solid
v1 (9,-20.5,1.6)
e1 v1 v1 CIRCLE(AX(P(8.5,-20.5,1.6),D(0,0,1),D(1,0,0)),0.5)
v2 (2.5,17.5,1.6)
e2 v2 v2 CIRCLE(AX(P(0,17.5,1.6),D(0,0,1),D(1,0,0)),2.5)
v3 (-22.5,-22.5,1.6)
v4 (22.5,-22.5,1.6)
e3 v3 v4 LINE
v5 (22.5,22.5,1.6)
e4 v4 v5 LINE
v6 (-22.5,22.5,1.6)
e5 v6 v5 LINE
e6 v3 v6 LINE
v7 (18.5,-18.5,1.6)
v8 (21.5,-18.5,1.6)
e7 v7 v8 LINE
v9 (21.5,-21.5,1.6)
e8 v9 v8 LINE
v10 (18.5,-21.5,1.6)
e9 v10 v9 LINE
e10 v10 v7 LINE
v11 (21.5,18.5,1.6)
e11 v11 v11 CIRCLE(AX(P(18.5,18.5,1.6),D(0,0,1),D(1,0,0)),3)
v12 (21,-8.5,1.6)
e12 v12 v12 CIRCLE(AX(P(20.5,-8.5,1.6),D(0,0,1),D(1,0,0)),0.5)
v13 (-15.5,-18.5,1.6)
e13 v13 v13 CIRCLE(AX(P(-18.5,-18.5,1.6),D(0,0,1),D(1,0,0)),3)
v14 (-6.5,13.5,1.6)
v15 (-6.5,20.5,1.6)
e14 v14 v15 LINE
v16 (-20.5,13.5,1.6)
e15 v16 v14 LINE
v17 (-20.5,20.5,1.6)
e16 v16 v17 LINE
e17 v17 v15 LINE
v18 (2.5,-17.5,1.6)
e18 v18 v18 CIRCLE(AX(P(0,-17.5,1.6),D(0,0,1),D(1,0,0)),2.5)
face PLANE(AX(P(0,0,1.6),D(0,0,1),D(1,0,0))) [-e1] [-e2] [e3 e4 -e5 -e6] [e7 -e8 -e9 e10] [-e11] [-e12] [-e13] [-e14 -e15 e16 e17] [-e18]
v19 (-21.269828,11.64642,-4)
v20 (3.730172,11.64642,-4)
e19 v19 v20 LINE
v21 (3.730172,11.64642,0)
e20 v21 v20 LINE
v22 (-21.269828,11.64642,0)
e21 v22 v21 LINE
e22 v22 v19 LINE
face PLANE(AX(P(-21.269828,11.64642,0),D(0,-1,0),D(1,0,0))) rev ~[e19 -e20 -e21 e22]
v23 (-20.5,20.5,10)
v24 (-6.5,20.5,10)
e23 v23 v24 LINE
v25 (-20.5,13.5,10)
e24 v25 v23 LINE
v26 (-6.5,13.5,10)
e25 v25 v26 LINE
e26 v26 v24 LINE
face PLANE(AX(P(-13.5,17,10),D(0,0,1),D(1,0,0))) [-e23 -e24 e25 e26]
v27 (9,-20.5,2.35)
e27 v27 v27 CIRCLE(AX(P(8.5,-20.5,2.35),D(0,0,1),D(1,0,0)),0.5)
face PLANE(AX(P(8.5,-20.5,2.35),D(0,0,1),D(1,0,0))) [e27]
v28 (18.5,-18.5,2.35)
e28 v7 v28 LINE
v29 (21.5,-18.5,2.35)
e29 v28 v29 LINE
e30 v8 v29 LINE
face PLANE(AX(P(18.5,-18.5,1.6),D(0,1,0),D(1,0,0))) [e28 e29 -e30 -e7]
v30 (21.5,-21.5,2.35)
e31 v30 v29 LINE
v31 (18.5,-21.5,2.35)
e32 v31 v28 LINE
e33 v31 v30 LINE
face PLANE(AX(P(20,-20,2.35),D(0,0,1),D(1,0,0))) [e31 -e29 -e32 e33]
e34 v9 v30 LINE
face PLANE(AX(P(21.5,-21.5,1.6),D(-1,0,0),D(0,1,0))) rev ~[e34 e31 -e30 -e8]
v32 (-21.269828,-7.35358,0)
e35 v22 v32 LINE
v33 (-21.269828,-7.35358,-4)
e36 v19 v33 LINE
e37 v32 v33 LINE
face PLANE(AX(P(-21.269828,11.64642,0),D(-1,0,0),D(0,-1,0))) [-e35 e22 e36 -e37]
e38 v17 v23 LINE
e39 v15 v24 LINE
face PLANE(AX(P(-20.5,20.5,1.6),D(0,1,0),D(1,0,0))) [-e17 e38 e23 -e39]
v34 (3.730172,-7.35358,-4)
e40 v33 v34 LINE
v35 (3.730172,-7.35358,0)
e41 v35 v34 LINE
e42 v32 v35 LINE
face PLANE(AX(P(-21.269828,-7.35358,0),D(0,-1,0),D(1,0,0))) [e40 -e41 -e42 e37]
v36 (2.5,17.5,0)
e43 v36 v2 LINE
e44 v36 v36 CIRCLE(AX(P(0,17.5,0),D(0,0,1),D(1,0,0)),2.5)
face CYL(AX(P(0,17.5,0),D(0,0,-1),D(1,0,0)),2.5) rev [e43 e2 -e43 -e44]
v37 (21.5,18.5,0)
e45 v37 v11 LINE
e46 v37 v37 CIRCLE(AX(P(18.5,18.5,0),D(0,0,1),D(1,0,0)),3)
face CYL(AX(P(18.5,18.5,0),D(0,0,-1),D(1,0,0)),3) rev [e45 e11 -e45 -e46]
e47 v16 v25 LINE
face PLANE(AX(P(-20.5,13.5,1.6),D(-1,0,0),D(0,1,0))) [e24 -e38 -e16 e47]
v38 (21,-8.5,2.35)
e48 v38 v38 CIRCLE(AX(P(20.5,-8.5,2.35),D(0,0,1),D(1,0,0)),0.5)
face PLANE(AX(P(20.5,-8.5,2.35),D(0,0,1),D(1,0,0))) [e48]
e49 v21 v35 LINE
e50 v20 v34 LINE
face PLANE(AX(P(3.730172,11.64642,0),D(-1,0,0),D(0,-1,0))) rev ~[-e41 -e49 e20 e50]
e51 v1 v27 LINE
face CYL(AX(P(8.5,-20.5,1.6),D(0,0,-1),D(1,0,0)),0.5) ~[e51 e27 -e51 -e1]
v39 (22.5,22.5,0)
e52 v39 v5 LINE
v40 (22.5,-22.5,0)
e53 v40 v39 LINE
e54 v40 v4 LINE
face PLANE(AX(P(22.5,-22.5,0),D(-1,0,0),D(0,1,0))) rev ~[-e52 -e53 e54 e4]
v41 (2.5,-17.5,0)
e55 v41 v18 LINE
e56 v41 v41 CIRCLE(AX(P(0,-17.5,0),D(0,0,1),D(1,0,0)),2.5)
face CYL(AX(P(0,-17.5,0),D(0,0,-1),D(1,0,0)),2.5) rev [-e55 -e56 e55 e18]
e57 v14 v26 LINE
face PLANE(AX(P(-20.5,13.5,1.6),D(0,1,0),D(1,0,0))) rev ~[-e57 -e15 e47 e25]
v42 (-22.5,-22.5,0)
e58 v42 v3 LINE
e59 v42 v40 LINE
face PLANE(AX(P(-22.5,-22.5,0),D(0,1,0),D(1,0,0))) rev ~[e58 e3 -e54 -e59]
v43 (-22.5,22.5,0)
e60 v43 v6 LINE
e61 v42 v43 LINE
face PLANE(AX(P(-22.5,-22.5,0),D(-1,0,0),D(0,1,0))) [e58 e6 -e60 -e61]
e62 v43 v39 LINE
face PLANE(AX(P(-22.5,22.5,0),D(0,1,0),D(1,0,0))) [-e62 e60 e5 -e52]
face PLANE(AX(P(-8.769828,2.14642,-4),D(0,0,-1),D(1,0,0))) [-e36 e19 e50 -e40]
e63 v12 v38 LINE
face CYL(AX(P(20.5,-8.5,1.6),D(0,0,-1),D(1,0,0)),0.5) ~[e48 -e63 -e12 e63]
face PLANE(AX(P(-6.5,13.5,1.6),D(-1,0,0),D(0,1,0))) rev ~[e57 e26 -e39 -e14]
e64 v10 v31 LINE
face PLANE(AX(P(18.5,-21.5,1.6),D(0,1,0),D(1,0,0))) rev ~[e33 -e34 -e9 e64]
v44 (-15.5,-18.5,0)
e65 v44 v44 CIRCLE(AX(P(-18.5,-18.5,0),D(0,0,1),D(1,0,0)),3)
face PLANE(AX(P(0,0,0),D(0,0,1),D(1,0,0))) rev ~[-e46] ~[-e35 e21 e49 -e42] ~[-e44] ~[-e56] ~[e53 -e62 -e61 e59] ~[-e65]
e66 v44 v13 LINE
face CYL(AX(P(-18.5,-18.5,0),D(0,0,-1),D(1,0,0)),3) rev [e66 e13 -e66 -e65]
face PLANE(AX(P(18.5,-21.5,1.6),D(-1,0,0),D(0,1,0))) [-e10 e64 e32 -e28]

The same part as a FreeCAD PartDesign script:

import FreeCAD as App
import Part
import Sketcher
from FreeCAD import Vector
Q = App.Units.Quantity

doc = App.newDocument("Part")
params = doc.addObject("Spreadsheet::Sheet", "Params")
for row, (alias, value) in enumerate([
    ("sketch1_diameter", "6 mm"),
    ("sketch1_diameter2", "5 mm"),
    ("sketch1_width", "45 mm"),
    ("pad1_length", "1.6 mm"),
    ("sketch2_diameter", "1 mm"),
    ("sketch2_width", "3 mm"),
    ("pad2_length", "0.75 mm"),
    ("sketch3_width", "25 mm"),
    ("sketch3_height", "19 mm"),
    ("pad3_length", "4 mm"),
    ("sketch4_width", "14 mm"),
    ("sketch4_height", "7 mm"),
    ("pad4_length", "8.4 mm"),
], start=1):
    params.set(f"A{row}", alias)
    params.set(f"B{row}", "=" + value)
    params.setAlias(f"B{row}", alias)

body = doc.addObject("PartDesign::Body", "Body")

# Sketch on XY plane
sketch1 = doc.addObject("Sketcher::SketchObject", "Sketch")
body.addObject(sketch1)
sketch1.AttachmentSupport = (doc.XY_Plane, [""])
sketch1.MapMode = "FlatFace"
sketch1.addGeometry(Part.LineSegment(Vector(-22.5, 22.5, 0), Vector(-22.5, -22.5, 0)), False)
sketch1.addGeometry(Part.LineSegment(Vector(-22.5, -22.5, 0), Vector(22.5, -22.5, 0)), False)
sketch1.addGeometry(Part.LineSegment(Vector(22.5, -22.5, 0), Vector(22.5, 22.5, 0)), False)
sketch1.addGeometry(Part.LineSegment(Vector(22.5, 22.5, 0), Vector(-22.5, 22.5, 0)), False)
sketch1.addGeometry(Part.Circle(Vector(-18.5, -18.5, 0), Vector(0, 0, 1), 3), False)
sketch1.addGeometry(Part.Circle(Vector(0, -17.5, 0), Vector(0, 0, 1), 2.5), False)
sketch1.addGeometry(Part.Circle(Vector(0, 17.5, 0), Vector(0, 0, 1), 2.5), False)
sketch1.addGeometry(Part.Circle(Vector(18.5, 18.5, 0), Vector(0, 0, 1), 3), False)
sketch1.addConstraint(Sketcher.Constraint("Coincident", 0, 2, 1, 1))
sketch1.addConstraint(Sketcher.Constraint("Coincident", 1, 2, 2, 1))
sketch1.addConstraint(Sketcher.Constraint("Coincident", 2, 2, 3, 1))
sketch1.addConstraint(Sketcher.Constraint("Coincident", 3, 2, 0, 1))
sketch1.addConstraint(Sketcher.Constraint("Vertical", 0))
sketch1.addConstraint(Sketcher.Constraint("Horizontal", 1))
sketch1.addConstraint(Sketcher.Constraint("Vertical", 2))
sketch1.addConstraint(Sketcher.Constraint("Horizontal", 3))
sketch1.addConstraint(Sketcher.Constraint("Equal", 5, 6))
sketch1.addConstraint(Sketcher.Constraint("Equal", 4, 7))
sketch1.addConstraint(Sketcher.Constraint("Symmetric", 5, 3, 6, 3, -1, 1))
sketch1.addConstraint(Sketcher.Constraint("Symmetric", 4, 3, 7, 3, -1, 1))
sketch1.addConstraint(Sketcher.Constraint("Symmetric", 0, 2, 2, 2, -1, 1))
sketch1.addConstraint(Sketcher.Constraint("PointOnObject", 5, 3, -2))
sketch1.addConstraint(Sketcher.Constraint("Equal", 3, 0))
sketch1.addConstraint(Sketcher.Constraint("Diameter", 4, Q("6 mm")))
sketch1.addConstraint(Sketcher.Constraint("Diameter", 5, Q("5 mm")))
sketch1.addConstraint(Sketcher.Constraint("DistanceX", 1, 1, 1, 2, Q("45 mm")))
sketch1.addConstraint(Sketcher.Constraint("DistanceY", 4, 3, 5, 3, Q("1 mm")))
sketch1.addConstraint(Sketcher.Constraint("DistanceY", 5, 3, 6, 3, Q("35 mm")))
sketch1.addConstraint(Sketcher.Constraint("DistanceX", 4, 3, 7, 3, Q("37 mm")))
sketch1.setExpression("Constraints[15]", "Params.sketch1_diameter")
sketch1.setExpression("Constraints[16]", "Params.sketch1_diameter2")
sketch1.setExpression("Constraints[17]", "Params.sketch1_width")
pad1 = doc.addObject("PartDesign::Pad", "Pad")
body.addObject(pad1)
pad1.Profile = sketch1
pad1.setExpression("Length", "Params.pad1_length")

# Sketch on XY plane
sketch2 = doc.addObject("Sketcher::SketchObject", "Sketch001")
body.addObject(sketch2)
sketch2.AttachmentSupport = (doc.XY_Plane, [""])
sketch2.MapMode = "FlatFace"
sketch2.AttachmentOffset = App.Placement(Vector(0, 0, 1.6), App.Rotation())
sketch2.addGeometry(Part.LineSegment(Vector(18.5, -18.5, 0), Vector(18.5, -21.5, 0)), False)
sketch2.addGeometry(Part.LineSegment(Vector(18.5, -21.5, 0), Vector(21.5, -21.5, 0)), False)
sketch2.addGeometry(Part.LineSegment(Vector(21.5, -21.5, 0), Vector(21.5, -18.5, 0)), False)
sketch2.addGeometry(Part.LineSegment(Vector(21.5, -18.5, 0), Vector(18.5, -18.5, 0)), False)
sketch2.addGeometry(Part.Circle(Vector(20.5, -8.5, 0), Vector(0, 0, 1), 0.5), False)
sketch2.addGeometry(Part.Circle(Vector(8.5, -20.5, 0), Vector(0, 0, 1), 0.5), False)
sketch2.addConstraint(Sketcher.Constraint("Coincident", 0, 2, 1, 1))
sketch2.addConstraint(Sketcher.Constraint("Coincident", 1, 2, 2, 1))
sketch2.addConstraint(Sketcher.Constraint("Coincident", 2, 2, 3, 1))
sketch2.addConstraint(Sketcher.Constraint("Coincident", 3, 2, 0, 1))
sketch2.addConstraint(Sketcher.Constraint("Vertical", 0))
sketch2.addConstraint(Sketcher.Constraint("Horizontal", 1))
sketch2.addConstraint(Sketcher.Constraint("Vertical", 2))
sketch2.addConstraint(Sketcher.Constraint("Horizontal", 3))
sketch2.addConstraint(Sketcher.Constraint("Equal", 4, 5))
sketch2.addConstraint(Sketcher.Constraint("Equal", 3, 0))
sketch2.addConstraint(Sketcher.Constraint("Diameter", 4, Q("1 mm")))
sketch2.addConstraint(Sketcher.Constraint("DistanceX", 1, 1, 1, 2, Q("3 mm")))
sketch2.addConstraint(Sketcher.Constraint("DistanceX", 5, 3, 4, 3, Q("12 mm")))
sketch2.addConstraint(Sketcher.Constraint("DistanceY", 5, 3, 4, 3, Q("12 mm")))
sketch2.addConstraint(Sketcher.Constraint("DistanceX", 5, 3, 0, 2, Q("10 mm")))
sketch2.addConstraint(Sketcher.Constraint("DistanceY", 0, 2, 5, 3, Q("1 mm")))
sketch2.addConstraint(Sketcher.Constraint("DistanceX", -1, 1, 4, 3, Q("20.5 mm")))
sketch2.addConstraint(Sketcher.Constraint("DistanceY", 4, 3, -1, 1, Q("8.5 mm")))
sketch2.setExpression("Constraints[10]", "Params.sketch2_diameter")
sketch2.setExpression("Constraints[11]", "Params.sketch2_width")
pad2 = doc.addObject("PartDesign::Pad", "Pad001")
body.addObject(pad2)
pad2.Profile = sketch2
pad2.setExpression("Length", "Params.pad2_length")

# Sketch on XY plane
sketch3 = doc.addObject("Sketcher::SketchObject", "Sketch002")
body.addObject(sketch3)
sketch3.AttachmentSupport = (doc.XY_Plane, [""])
sketch3.MapMode = "FlatFace"
sketch3.addGeometry(Part.LineSegment(Vector(-21.269828, -7.35358, 0), Vector(-21.269828, 11.64642, 0)), False)
sketch3.addGeometry(Part.LineSegment(Vector(-21.269828, 11.64642, 0), Vector(3.730172, 11.64642, 0)), False)
sketch3.addGeometry(Part.LineSegment(Vector(3.730172, 11.64642, 0), Vector(3.730172, -7.35358, 0)), False)
sketch3.addGeometry(Part.LineSegment(Vector(3.730172, -7.35358, 0), Vector(-21.269828, -7.35358, 0)), False)
sketch3.addConstraint(Sketcher.Constraint("Coincident", 0, 2, 1, 1))
sketch3.addConstraint(Sketcher.Constraint("Coincident", 1, 2, 2, 1))
sketch3.addConstraint(Sketcher.Constraint("Coincident", 2, 2, 3, 1))
sketch3.addConstraint(Sketcher.Constraint("Coincident", 3, 2, 0, 1))
sketch3.addConstraint(Sketcher.Constraint("Vertical", 0))
sketch3.addConstraint(Sketcher.Constraint("Horizontal", 1))
sketch3.addConstraint(Sketcher.Constraint("Vertical", 2))
sketch3.addConstraint(Sketcher.Constraint("Horizontal", 3))
sketch3.addConstraint(Sketcher.Constraint("DistanceX", 1, 1, 1, 2, Q("25 mm")))
sketch3.addConstraint(Sketcher.Constraint("DistanceY", 0, 1, 0, 2, Q("19 mm")))
sketch3.addConstraint(Sketcher.Constraint("DistanceX", 0, 2, -1, 1, Q("21.269828 mm")))
sketch3.addConstraint(Sketcher.Constraint("DistanceY", -1, 1, 0, 2, Q("11.64642 mm")))
sketch3.setExpression("Constraints[8]", "Params.sketch3_width")
sketch3.setExpression("Constraints[9]", "Params.sketch3_height")
pad3 = doc.addObject("PartDesign::Pad", "Pad002")
body.addObject(pad3)
pad3.Profile = sketch3
pad3.setExpression("Length", "Params.pad3_length")
pad3.Reversed = True

# Sketch on XY plane
sketch4 = doc.addObject("Sketcher::SketchObject", "Sketch003")
body.addObject(sketch4)
sketch4.AttachmentSupport = (doc.XY_Plane, [""])
sketch4.MapMode = "FlatFace"
sketch4.AttachmentOffset = App.Placement(Vector(0, 0, 1.6), App.Rotation())
sketch4.addGeometry(Part.LineSegment(Vector(-20.5, 20.5, 0), Vector(-20.5, 13.5, 0)), False)
sketch4.addGeometry(Part.LineSegment(Vector(-20.5, 13.5, 0), Vector(-6.5, 13.5, 0)), False)
sketch4.addGeometry(Part.LineSegment(Vector(-6.5, 13.5, 0), Vector(-6.5, 20.5, 0)), False)
sketch4.addGeometry(Part.LineSegment(Vector(-6.5, 20.5, 0), Vector(-20.5, 20.5, 0)), False)
sketch4.addConstraint(Sketcher.Constraint("Coincident", 0, 2, 1, 1))
sketch4.addConstraint(Sketcher.Constraint("Coincident", 1, 2, 2, 1))
sketch4.addConstraint(Sketcher.Constraint("Coincident", 2, 2, 3, 1))
sketch4.addConstraint(Sketcher.Constraint("Coincident", 3, 2, 0, 1))
sketch4.addConstraint(Sketcher.Constraint("Vertical", 0))
sketch4.addConstraint(Sketcher.Constraint("Horizontal", 1))
sketch4.addConstraint(Sketcher.Constraint("Vertical", 2))
sketch4.addConstraint(Sketcher.Constraint("Horizontal", 3))
sketch4.addConstraint(Sketcher.Constraint("DistanceX", 1, 1, 1, 2, Q("14 mm")))
sketch4.addConstraint(Sketcher.Constraint("DistanceY", 0, 2, 0, 1, Q("7 mm")))
sketch4.addConstraint(Sketcher.Constraint("DistanceX", 0, 2, -1, 1, Q("20.5 mm")))
sketch4.addConstraint(Sketcher.Constraint("DistanceY", -1, 1, 0, 2, Q("13.5 mm")))
sketch4.setExpression("Constraints[8]", "Params.sketch4_width")
sketch4.setExpression("Constraints[9]", "Params.sketch4_height")
pad4 = doc.addObject("PartDesign::Pad", "Pad003")
body.addObject(pad4)
pad4.Profile = sketch4
pad4.setExpression("Length", "Params.pad4_length")

doc.recompute()
